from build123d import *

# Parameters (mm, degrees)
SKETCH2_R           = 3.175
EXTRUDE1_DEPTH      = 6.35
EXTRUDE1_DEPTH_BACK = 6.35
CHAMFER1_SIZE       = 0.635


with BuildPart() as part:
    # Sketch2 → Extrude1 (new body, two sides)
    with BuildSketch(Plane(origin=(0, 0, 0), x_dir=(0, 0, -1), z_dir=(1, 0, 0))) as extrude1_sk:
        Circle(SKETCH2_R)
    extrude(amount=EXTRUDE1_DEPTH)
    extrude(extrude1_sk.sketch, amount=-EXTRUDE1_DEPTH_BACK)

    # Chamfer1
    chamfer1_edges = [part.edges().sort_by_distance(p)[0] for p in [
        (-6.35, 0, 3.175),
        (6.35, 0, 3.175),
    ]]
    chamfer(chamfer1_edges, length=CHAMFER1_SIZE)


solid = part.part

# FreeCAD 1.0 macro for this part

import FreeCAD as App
import Part
import Sketcher

V = App.Vector
Q = App.Units.Quantity


def edges_at(feature, points):
    """Names of the edges that pass closest to the given points."""
    edges = feature.Shape.Edges
    near = lambda p: min(range(len(edges)), key=lambda i: edges[i].distToShape(Part.Vertex(*p))[0])
    return sorted({f"Edge{near(p) + 1}" for p in points})

doc = App.newDocument("Part")
body = doc.addObject("PartDesign::Body", "Body")

sketch1 = doc.addObject("Sketcher::SketchObject", "Sketch")
body.addObject(sketch1)
sketch1.AttachmentSupport = (doc.YZ_Plane, [""])
sketch1.MapMode = "FlatFace"
sketch1.addGeometry(Part.Circle(V(0, 0, 0), V(0, 0, 1), 3.2), False)
sketch1.addConstraint([
    Sketcher.Constraint("Coincident", 0, 3, -1, 1),
    Sketcher.Constraint("Diameter", 0, Q("0.25 in")),
])
pad1 = doc.addObject("PartDesign::Pad", "Pad")
body.addObject(pad1)
pad1.Profile = sketch1
pad1.Type = "TwoLengths"
pad1.Length = Q("0.25 in")
pad1.Length2 = Q("0.25 in")
doc.recompute()

chamfer = doc.addObject("PartDesign::Chamfer", "Chamfer")
body.addObject(chamfer)
chamfer.Base = (pad1, edges_at(pad1, [(-6.35, 0, 3.175), (6.35, 0, 3.175)]))
chamfer.Size = Q("0.025 in")

doc.recompute()
